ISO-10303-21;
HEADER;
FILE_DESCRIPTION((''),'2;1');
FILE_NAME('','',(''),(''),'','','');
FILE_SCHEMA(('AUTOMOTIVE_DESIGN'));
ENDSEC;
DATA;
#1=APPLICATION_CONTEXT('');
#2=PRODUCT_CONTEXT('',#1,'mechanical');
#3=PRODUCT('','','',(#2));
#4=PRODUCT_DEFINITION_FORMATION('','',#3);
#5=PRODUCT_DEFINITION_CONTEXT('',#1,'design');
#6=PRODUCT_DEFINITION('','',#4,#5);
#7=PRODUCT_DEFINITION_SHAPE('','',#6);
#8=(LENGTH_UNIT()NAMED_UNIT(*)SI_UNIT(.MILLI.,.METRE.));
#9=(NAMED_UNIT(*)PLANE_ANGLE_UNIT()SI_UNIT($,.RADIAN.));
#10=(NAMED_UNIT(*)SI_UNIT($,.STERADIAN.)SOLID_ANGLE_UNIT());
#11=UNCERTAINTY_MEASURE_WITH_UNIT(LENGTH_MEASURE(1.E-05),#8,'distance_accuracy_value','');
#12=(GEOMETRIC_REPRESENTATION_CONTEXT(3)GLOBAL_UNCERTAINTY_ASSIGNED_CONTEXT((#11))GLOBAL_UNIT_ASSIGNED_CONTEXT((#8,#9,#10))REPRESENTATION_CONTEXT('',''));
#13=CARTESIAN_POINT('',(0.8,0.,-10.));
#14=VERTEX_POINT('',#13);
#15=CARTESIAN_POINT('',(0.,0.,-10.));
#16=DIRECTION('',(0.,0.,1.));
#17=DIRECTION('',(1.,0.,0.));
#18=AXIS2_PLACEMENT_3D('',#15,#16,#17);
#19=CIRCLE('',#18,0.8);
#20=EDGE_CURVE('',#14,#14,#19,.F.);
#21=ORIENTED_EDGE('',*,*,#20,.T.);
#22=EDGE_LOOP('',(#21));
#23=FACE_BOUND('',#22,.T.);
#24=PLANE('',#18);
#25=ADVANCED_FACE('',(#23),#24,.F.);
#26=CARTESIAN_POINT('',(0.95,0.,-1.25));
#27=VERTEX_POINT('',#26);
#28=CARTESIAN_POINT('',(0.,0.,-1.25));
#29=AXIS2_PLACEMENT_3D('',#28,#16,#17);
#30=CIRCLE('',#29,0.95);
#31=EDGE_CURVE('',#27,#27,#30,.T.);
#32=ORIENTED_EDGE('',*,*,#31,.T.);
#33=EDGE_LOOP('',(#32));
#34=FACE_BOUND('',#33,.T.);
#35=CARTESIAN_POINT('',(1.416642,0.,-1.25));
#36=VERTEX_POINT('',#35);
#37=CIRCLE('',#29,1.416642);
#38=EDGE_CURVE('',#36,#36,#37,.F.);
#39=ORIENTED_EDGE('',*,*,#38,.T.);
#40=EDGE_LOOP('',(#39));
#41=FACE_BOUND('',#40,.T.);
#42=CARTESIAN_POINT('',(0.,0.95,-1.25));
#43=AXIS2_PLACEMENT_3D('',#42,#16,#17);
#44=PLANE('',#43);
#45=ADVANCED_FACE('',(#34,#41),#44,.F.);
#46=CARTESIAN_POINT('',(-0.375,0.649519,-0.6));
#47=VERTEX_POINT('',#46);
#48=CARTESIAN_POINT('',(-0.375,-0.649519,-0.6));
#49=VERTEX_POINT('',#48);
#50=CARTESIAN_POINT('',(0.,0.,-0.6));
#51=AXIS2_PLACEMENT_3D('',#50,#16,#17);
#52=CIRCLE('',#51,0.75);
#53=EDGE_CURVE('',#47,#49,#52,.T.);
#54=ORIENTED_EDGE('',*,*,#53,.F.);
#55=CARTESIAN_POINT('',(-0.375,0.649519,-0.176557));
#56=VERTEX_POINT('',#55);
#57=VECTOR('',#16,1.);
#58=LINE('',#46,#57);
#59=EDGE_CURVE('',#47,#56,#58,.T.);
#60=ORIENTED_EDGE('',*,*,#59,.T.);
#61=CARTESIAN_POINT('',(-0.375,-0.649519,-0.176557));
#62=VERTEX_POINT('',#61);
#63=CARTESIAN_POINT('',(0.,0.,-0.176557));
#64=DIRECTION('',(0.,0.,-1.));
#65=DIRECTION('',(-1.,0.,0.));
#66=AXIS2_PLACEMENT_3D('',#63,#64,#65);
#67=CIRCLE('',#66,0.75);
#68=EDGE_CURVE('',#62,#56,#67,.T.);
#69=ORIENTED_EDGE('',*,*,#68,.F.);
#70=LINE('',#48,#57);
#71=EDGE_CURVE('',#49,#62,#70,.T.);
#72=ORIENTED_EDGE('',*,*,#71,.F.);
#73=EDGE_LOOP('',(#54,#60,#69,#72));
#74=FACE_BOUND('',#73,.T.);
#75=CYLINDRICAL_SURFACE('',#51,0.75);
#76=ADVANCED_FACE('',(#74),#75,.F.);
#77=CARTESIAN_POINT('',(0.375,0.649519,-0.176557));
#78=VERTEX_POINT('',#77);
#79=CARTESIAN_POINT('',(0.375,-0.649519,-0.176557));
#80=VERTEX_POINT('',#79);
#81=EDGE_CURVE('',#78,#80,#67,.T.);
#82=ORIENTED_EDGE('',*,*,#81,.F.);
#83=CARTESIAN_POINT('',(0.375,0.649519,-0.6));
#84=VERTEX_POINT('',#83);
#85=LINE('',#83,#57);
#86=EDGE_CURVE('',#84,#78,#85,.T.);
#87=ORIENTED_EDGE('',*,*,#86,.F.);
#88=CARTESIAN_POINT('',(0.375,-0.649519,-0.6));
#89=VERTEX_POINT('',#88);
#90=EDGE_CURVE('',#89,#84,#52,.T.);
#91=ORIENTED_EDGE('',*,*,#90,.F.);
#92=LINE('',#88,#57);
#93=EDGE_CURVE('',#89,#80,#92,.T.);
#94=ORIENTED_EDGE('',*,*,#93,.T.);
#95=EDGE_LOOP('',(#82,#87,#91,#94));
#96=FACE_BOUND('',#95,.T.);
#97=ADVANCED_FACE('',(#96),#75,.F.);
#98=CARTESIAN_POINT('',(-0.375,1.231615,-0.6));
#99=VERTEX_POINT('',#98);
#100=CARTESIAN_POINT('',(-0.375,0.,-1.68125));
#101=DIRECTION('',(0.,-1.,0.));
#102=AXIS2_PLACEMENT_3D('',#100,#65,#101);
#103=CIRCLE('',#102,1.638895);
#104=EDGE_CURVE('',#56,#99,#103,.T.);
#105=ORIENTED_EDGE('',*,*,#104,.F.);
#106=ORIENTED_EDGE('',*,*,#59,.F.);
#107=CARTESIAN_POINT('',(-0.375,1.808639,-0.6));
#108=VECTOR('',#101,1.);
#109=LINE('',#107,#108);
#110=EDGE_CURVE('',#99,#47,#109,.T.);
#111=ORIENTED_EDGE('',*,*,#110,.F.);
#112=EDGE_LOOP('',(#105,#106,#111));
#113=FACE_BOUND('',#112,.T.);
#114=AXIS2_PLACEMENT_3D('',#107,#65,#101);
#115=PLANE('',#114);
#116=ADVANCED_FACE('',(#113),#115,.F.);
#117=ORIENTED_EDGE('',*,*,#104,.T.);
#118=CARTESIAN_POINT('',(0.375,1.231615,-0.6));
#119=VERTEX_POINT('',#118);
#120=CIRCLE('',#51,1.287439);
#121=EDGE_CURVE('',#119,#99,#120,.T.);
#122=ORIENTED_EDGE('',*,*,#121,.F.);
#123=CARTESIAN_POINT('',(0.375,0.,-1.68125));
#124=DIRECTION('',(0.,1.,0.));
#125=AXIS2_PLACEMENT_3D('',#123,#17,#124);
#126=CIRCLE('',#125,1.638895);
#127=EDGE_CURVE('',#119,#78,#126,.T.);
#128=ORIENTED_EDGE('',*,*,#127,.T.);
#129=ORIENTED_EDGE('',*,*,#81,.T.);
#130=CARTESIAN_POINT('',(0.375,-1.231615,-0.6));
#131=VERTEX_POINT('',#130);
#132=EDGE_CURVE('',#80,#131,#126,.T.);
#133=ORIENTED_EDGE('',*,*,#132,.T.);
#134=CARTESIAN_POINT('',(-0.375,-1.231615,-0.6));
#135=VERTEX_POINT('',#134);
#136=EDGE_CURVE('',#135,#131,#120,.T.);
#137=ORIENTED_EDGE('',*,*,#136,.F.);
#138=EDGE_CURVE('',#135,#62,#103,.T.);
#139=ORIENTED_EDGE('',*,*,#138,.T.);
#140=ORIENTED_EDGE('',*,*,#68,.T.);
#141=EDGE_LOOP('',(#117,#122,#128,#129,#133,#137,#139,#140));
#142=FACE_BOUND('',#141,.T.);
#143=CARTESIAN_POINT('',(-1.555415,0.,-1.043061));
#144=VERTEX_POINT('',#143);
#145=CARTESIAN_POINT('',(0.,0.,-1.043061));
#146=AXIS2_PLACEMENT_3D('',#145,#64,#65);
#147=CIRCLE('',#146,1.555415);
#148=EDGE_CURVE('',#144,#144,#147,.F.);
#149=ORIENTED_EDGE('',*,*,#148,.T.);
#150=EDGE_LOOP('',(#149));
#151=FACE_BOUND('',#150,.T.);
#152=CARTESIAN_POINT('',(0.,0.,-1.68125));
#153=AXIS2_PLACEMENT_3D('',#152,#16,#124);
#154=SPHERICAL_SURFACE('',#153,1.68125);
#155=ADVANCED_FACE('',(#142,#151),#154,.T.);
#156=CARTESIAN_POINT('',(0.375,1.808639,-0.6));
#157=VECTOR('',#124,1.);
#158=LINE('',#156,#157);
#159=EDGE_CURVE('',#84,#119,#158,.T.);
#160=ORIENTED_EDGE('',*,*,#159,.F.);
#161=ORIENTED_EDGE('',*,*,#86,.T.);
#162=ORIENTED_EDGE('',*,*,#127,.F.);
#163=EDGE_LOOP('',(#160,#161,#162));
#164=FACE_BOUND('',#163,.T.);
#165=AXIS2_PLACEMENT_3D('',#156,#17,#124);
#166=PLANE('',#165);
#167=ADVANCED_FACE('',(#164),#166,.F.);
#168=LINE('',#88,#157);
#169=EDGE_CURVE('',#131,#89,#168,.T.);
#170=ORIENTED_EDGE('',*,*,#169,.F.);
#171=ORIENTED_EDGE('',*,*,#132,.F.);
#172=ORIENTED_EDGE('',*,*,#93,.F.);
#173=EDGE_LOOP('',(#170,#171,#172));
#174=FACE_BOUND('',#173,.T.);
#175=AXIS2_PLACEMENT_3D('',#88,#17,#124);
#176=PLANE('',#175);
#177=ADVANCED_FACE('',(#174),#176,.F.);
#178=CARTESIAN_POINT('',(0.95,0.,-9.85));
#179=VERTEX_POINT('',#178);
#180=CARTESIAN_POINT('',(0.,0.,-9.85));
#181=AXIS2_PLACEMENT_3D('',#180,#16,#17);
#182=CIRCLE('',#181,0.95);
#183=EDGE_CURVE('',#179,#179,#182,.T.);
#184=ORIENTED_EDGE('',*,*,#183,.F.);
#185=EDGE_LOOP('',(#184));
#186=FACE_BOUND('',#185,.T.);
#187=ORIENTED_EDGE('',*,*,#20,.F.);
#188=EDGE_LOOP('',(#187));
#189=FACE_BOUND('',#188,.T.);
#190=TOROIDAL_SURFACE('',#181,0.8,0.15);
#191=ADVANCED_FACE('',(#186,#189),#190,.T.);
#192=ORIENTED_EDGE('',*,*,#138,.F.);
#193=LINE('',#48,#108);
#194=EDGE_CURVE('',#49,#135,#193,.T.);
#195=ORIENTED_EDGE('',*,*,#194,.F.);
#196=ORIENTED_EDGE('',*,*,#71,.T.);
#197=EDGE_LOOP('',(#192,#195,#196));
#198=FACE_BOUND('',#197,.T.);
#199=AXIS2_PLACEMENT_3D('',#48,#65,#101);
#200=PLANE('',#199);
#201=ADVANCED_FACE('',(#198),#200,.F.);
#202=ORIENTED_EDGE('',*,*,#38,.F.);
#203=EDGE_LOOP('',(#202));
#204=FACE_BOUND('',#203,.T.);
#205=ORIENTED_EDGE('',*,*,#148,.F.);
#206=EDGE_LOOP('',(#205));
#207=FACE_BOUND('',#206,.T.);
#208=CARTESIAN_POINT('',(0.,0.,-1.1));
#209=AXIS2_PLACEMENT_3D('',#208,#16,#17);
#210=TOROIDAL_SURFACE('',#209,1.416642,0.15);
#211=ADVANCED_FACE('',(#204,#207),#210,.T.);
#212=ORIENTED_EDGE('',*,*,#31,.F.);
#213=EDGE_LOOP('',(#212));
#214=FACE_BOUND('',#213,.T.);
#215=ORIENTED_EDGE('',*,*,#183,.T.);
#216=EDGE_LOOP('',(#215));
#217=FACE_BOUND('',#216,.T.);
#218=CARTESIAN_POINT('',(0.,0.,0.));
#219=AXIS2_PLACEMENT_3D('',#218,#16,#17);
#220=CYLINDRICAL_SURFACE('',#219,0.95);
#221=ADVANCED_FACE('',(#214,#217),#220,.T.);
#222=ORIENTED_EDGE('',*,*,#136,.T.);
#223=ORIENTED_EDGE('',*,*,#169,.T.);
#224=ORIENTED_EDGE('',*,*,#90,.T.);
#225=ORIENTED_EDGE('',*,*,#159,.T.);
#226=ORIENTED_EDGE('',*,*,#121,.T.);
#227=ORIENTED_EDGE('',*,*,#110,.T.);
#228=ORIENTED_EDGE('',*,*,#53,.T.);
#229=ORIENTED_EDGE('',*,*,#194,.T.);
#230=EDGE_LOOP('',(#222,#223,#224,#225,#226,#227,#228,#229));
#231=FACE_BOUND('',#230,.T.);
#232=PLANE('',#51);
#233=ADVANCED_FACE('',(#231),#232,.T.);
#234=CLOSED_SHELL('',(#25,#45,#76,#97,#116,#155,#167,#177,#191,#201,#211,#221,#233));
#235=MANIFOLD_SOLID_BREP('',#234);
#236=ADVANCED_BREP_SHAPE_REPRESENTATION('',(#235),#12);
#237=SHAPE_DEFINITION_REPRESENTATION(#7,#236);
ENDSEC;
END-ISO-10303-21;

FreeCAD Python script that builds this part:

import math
import FreeCAD as App
import Part
import Sketcher
Q = App.Units.Quantity


def edges_at(feature, points):
    """Names of the edges that pass closest to the given points."""
    edges = feature.Shape.Edges
    near = lambda p: min(range(len(edges)), key=lambda i: edges[i].distToShape(Part.Vertex(*p))[0])
    return sorted({f"Edge{near(p) + 1}" for p in points})

doc = App.newDocument("Part")
params = doc.addObject("Spreadsheet::Sheet", "Params")
for row, (alias, value) in enumerate([
    ("sketch1_height", "10 mm"),
    ("sketch1_width", "0.95 mm"),
    ("sketch1_height2", "8.75 mm"),
    ("revolution_angle", "360 deg"),
    ("sketch2_radius", "0.75 mm"),
    ("sketch2_width", "0.75 mm"),
    ("pocket1_length", "0.6 mm"),
    ("fillet_radius", "0.15 mm"),
], start=1):
    params.set(f"A{row}", alias)
    params.set(f"B{row}", "=" + value)
    params.setAlias(f"B{row}", alias)

body = doc.addObject("PartDesign::Body", "Body")

# Sketch on YZ plane
sketch1 = doc.addObject("Sketcher::SketchObject", "Sketch")
body.addObject(sketch1)
sketch1.AttachmentSupport = (doc.YZ_Plane, [""])
sketch1.MapMode = "FlatFace"
sketch1.addGeometry([
    Part.LineSegment(App.Vector(0, 0, 0), App.Vector(0, -10, 0)),  # 0
    Part.LineSegment(App.Vector(0, -10, 0), App.Vector(0.95, -10, 0)),  # 1
    Part.LineSegment(App.Vector(0.95, -10, 0), App.Vector(0.95, -1.25, 0)),  # 2
    Part.LineSegment(App.Vector(0.95, -1.25, 0), App.Vector(1.625, -1.25, 0)),  # 3
    Part.ArcOfCircle(Part.Circle(App.Vector(0, -1.68125, 0), App.Vector(0, 0, 1), 1.68125), math.radians(14.862816), math.radians(90)),  # 4
], False)
sketch1.addConstraint([
    Sketcher.Constraint("Coincident", 0, 2, 1, 1),
    Sketcher.Constraint("Coincident", 1, 2, 2, 1),
    Sketcher.Constraint("Coincident", 2, 2, 3, 1),
    Sketcher.Constraint("Coincident", 3, 2, 4, 1),
    Sketcher.Constraint("Coincident", 4, 2, 0, 1),
    Sketcher.Constraint("Vertical", 0),
    Sketcher.Constraint("Horizontal", 1),
    Sketcher.Constraint("Vertical", 2),
    Sketcher.Constraint("Horizontal", 3),
    Sketcher.Constraint("Coincident", 4, 2, -1, 1),
    Sketcher.Constraint("PointOnObject", 4, 3, -2),
    Sketcher.Constraint("DistanceY", 0, 2, 0, 1, Q("10 mm")),
    Sketcher.Constraint("DistanceX", 1, 1, 1, 2, Q("0.95 mm")),
    Sketcher.Constraint("DistanceY", 2, 1, 2, 2, Q("8.75 mm")),
    Sketcher.Constraint("DistanceX", 3, 1, 3, 2, Q("0.675 mm")),
])
sketch1.setExpression("Constraints[11]", "Params.sketch1_height")
sketch1.setExpression("Constraints[12]", "Params.sketch1_width")
sketch1.setExpression("Constraints[13]", "Params.sketch1_height2")
revolution = doc.addObject("PartDesign::Revolution", "Revolution")
body.addObject(revolution)
revolution.Profile = sketch1
revolution.ReferenceAxis = (sketch1, ["V_Axis"])
revolution.setExpression("Angle", "Params.revolution_angle")

# Sketch on XY plane
sketch2 = doc.addObject("Sketcher::SketchObject", "Sketch001")
body.addObject(sketch2)
sketch2.AttachmentSupport = (doc.XY_Plane, [""])
sketch2.MapMode = "FlatFace"
sketch2.addGeometry([
    Part.LineSegment(App.Vector(-0.375, -0.649519, 0), App.Vector(-0.375, -1.808639, 0)),  # 0
    Part.LineSegment(App.Vector(-0.375, -1.808639, 0), App.Vector(0.375, -1.808639, 0)),  # 1
    Part.LineSegment(App.Vector(0.375, -1.808639, 0), App.Vector(0.375, -0.649519, 0)),  # 2
    Part.ArcOfCircle(Part.Circle(App.Vector(0, 0, 0), App.Vector(0, 0, 1), 0.75), math.radians(-60), math.radians(60)),  # 3
    Part.LineSegment(App.Vector(0.375, 0.649519, 0), App.Vector(0.375, 1.808639, 0)),  # 4
    Part.LineSegment(App.Vector(0.375, 1.808639, 0), App.Vector(-0.375, 1.808639, 0)),  # 5
    Part.LineSegment(App.Vector(-0.375, 1.808639, 0), App.Vector(-0.375, 0.649519, 0)),  # 6
    Part.ArcOfCircle(Part.Circle(App.Vector(0, 0, 0), App.Vector(0, 0, 1), 0.75), math.radians(120), math.radians(240)),  # 7
], False)
sketch2.addConstraint([
    Sketcher.Constraint("Coincident", 0, 2, 1, 1),
    Sketcher.Constraint("Coincident", 1, 2, 2, 1),
    Sketcher.Constraint("Coincident", 2, 2, 3, 1),
    Sketcher.Constraint("Coincident", 3, 2, 4, 1),
    Sketcher.Constraint("Coincident", 4, 2, 5, 1),
    Sketcher.Constraint("Coincident", 5, 2, 6, 1),
    Sketcher.Constraint("Coincident", 6, 2, 7, 1),
    Sketcher.Constraint("Coincident", 7, 2, 0, 1),
    Sketcher.Constraint("Vertical", 0),
    Sketcher.Constraint("Horizontal", 1),
    Sketcher.Constraint("Vertical", 2),
    Sketcher.Constraint("Vertical", 4),
    Sketcher.Constraint("Horizontal", 5),
    Sketcher.Constraint("Vertical", 6),
    Sketcher.Constraint("Coincident", 3, 3, -1, 1),
    Sketcher.Constraint("Coincident", 7, 3, -1, 1),
    Sketcher.Constraint("Equal", 3, 7),
    Sketcher.Constraint("Symmetric", 0, 2, 4, 2, -1, 1),
    Sketcher.Constraint("Horizontal", 3, 2, 6, 2),
    Sketcher.Constraint("Horizontal", 2, 2, 7, 2),
    Sketcher.Constraint("Radius", 3, Q("0.75 mm")),
    Sketcher.Constraint("DistanceX", 1, 1, 1, 2, Q("0.75 mm")),
    Sketcher.Constraint("DistanceY", 0, 2, 0, 1, Q("1.15912 mm")),
])
sketch2.setExpression("Constraints[20]", "Params.sketch2_radius")
sketch2.setExpression("Constraints[21]", "Params.sketch2_width")
pocket1 = doc.addObject("PartDesign::Pocket", "Pocket")
body.addObject(pocket1)
pocket1.Profile = sketch2
pocket1.setExpression("Length", "Params.pocket1_length")
doc.recompute()

fillet = doc.addObject("PartDesign::Fillet", "Fillet")
body.addObject(fillet)
fillet.Base = (pocket1, edges_at(pocket1, [(0, -1.625, -1.25), (0, -0.95, -10)]))
fillet.setExpression("Radius", "Params.fillet_radius")

doc.recompute()
